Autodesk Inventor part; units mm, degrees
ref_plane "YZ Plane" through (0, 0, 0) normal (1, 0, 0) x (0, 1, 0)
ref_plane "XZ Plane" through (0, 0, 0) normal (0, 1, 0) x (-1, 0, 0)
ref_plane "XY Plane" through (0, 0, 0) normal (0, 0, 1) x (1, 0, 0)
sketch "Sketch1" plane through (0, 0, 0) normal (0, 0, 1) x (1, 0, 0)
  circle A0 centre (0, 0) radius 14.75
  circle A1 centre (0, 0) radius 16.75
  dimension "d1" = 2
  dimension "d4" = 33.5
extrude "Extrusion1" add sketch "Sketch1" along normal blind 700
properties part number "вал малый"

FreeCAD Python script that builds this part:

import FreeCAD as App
import Part
import Sketcher
from FreeCAD import Vector
Q = App.Units.Quantity

doc = App.newDocument("Part")
params = doc.addObject("Spreadsheet::Sheet", "Params")
for row, (alias, value) in enumerate([
    ("sketch1_diameter", "33.5 mm"),
    ("sketch1_diameter2", "29.5 mm"),
    ("pad1_length", "700 mm"),
], start=1):
    params.set(f"A{row}", alias)
    params.set(f"B{row}", "=" + value)
    params.setAlias(f"B{row}", alias)

body = doc.addObject("PartDesign::Body", "Body")

# Sketch on XY plane
sketch1 = body.newObject("Sketcher::SketchObject", "Sketch")
sketch1.AttachmentSupport = (doc.getObject("XY_Plane"), [""])
sketch1.MapMode = "FlatFace"
sketch1.addGeometry([
    Part.Circle(Vector(0, 0, 0), Vector(0, 0, 1), 17),
    Part.Circle(Vector(0, 0, 0), Vector(0, 0, 1), 15),
], False)
sketch1.addConstraint([
    Sketcher.Constraint("Coincident", 0, 3, -1, 1),
    Sketcher.Constraint("Coincident", 1, 3, -1, 1),
    Sketcher.Constraint("Diameter", 0, Q("33.5 mm")),
    Sketcher.Constraint("Diameter", 1, Q("29.5 mm")),
])
sketch1.setExpression("Constraints[2]", "Params.sketch1_diameter")
sketch1.setExpression("Constraints[3]", "Params.sketch1_diameter2")
pad1 = body.newObject("PartDesign::Pad", "Pad")
pad1.Profile = sketch1
pad1.setExpression("Length", "Params.pad1_length")

doc.recompute()
